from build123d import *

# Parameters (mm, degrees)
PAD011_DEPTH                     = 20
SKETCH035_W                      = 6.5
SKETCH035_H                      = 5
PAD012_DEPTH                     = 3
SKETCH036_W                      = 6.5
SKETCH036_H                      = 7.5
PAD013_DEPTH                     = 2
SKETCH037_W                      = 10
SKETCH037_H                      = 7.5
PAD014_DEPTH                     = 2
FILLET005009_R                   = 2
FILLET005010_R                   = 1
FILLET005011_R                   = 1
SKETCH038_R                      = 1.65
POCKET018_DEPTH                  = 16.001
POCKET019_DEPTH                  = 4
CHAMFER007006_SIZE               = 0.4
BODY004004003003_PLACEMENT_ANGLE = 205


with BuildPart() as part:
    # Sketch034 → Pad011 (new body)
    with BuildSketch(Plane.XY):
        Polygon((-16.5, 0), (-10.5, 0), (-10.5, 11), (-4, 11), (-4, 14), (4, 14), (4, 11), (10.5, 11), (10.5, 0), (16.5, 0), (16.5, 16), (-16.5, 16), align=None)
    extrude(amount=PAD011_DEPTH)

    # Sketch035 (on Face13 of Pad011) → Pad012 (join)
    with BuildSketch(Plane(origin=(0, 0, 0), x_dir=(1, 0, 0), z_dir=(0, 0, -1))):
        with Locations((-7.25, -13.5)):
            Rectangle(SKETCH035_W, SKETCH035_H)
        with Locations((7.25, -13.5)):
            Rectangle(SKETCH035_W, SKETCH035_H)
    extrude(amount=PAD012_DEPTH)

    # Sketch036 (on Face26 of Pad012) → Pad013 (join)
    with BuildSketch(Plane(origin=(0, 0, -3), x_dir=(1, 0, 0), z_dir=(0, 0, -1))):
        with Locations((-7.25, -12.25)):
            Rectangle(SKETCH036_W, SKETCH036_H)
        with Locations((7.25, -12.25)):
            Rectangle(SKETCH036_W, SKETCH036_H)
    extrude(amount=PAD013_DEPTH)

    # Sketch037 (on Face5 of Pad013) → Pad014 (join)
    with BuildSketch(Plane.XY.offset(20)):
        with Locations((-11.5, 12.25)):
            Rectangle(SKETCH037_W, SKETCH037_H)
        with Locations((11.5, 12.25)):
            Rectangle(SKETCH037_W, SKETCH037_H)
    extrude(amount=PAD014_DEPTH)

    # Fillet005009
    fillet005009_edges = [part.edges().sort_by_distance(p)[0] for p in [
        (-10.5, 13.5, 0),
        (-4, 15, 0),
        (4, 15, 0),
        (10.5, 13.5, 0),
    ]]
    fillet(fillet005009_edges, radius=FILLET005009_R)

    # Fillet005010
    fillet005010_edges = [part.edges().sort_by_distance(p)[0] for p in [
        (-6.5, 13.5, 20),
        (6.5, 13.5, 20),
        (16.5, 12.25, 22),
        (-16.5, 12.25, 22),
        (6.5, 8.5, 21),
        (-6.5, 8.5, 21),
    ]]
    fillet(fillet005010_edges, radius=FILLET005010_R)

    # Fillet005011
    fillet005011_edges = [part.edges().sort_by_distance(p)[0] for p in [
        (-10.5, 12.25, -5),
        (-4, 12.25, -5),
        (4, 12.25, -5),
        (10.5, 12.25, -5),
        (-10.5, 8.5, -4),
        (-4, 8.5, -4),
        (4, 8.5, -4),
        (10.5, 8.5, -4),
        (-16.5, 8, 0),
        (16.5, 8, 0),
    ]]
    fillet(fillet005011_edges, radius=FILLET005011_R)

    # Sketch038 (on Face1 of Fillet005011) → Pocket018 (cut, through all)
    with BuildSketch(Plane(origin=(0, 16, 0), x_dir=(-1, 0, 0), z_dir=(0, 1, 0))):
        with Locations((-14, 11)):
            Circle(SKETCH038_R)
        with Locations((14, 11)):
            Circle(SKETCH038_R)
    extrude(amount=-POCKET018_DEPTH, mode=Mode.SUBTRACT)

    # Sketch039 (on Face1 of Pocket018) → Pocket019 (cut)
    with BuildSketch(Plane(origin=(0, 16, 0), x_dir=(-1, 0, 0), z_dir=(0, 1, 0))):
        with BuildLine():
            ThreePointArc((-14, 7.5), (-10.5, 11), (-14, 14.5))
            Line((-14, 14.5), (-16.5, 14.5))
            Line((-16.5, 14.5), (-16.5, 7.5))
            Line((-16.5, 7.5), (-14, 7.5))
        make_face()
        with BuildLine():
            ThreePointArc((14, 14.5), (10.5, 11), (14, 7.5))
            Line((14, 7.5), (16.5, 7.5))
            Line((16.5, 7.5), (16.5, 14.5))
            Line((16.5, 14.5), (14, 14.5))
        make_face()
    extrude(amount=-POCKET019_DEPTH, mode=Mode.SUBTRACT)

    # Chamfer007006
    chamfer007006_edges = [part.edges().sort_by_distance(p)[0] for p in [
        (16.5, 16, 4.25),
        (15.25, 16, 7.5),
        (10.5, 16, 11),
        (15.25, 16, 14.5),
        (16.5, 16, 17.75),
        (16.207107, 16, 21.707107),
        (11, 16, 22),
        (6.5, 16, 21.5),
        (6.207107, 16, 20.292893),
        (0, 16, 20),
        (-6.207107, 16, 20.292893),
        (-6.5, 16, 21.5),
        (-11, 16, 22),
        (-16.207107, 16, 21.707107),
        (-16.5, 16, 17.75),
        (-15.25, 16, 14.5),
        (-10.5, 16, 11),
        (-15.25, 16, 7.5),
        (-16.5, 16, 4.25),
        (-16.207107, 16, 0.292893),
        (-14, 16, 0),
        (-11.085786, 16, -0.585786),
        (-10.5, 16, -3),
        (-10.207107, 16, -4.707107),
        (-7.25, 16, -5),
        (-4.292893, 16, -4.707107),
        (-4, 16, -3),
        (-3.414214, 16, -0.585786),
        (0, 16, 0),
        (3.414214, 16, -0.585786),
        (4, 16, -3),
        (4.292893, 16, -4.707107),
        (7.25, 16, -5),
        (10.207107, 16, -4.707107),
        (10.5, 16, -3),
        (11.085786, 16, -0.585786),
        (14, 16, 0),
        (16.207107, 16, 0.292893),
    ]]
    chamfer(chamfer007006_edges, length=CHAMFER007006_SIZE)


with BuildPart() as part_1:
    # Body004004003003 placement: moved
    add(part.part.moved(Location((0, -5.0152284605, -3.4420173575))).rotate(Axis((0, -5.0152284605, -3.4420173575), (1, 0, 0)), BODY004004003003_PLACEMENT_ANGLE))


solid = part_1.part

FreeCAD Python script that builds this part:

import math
import FreeCAD as App
import Part
import Sketcher
from FreeCAD import Vector


def edges_at(feature, points):
    """Names of the edges that pass closest to the given points."""
    edges = feature.Shape.Edges
    near = lambda p: min(range(len(edges)), key=lambda i: edges[i].distToShape(Part.Vertex(*p))[0])
    return sorted({f"Edge{near(p) + 1}" for p in points})


def add_polygon(sketch, points):
    """Adds a closed chain of lines whose ends are joined by coincident constraints."""
    first, n = sketch.GeometryCount, len(points)
    for a, b in zip(points, points[1:] + points[:1]):
        sketch.addGeometry(Part.LineSegment(App.Vector(*a, 0), App.Vector(*b, 0)), False)
    for i in range(n):
        sketch.addConstraint(Sketcher.Constraint("Coincident", first + i, 2, first + (i + 1) % n, 1))

doc = App.newDocument("Part")
body = doc.addObject("PartDesign::Body", "Body")

# Sketch on XY plane
sketch1 = body.newObject("Sketcher::SketchObject", "Sketch")
sketch1.AttachmentSupport = (doc.getObject("XY_Plane"), [""])
sketch1.MapMode = "FlatFace"
add_polygon(sketch1, [(-16.5, 0), (-10.5, 0), (-10.5, 11), (-4, 11), (-4, 14), (4, 14), (4, 11), (10.5, 11), (10.5, 0), (16.5, 0), (16.5, 16), (-16.5, 16)])  # lines 0-11
sketch1.addConstraint(Sketcher.Constraint("Horizontal", 0))
sketch1.addConstraint(Sketcher.Constraint("Vertical", 1))
sketch1.addConstraint(Sketcher.Constraint("Horizontal", 2))
sketch1.addConstraint(Sketcher.Constraint("Vertical", 3))
sketch1.addConstraint(Sketcher.Constraint("Horizontal", 4))
sketch1.addConstraint(Sketcher.Constraint("Vertical", 5))
sketch1.addConstraint(Sketcher.Constraint("Horizontal", 6))
sketch1.addConstraint(Sketcher.Constraint("Vertical", 7))
sketch1.addConstraint(Sketcher.Constraint("Horizontal", 8))
sketch1.addConstraint(Sketcher.Constraint("Vertical", 9))
sketch1.addConstraint(Sketcher.Constraint("Horizontal", 10))
sketch1.addConstraint(Sketcher.Constraint("Vertical", 11))
sketch1.addConstraint(Sketcher.Constraint("Symmetric", 0, 2, 7, 2, -1, 1))
sketch1.addConstraint(Sketcher.Constraint("Symmetric", 2, 2, 5, 2, -2))
sketch1.addConstraint(Sketcher.Constraint("Symmetric", 8, 2, 11, 2, -2))
sketch1.addConstraint(Sketcher.Constraint("DistanceX", 0, 1, 0, 2, 6.0))
sketch1.addConstraint(Sketcher.Constraint("DistanceX", 4, 1, 4, 2, 8.0))
sketch1.addConstraint(Sketcher.Constraint("DistanceX", 10, 2, 10, 1, 33.0))
sketch1.addConstraint(Sketcher.Constraint("DistanceY", 1, 1, 1, 2, 11.0))
sketch1.addConstraint(Sketcher.Constraint("DistanceY", 3, 1, 3, 2, 3.0))
sketch1.addConstraint(Sketcher.Constraint("DistanceY", 9, 1, 9, 2, 16.0))
pad1 = body.newObject("PartDesign::Pad", "Pad")
pad1.Profile = sketch1
pad1.Length = 20

# Sketch on XY plane
sketch2 = body.newObject("Sketcher::SketchObject", "Sketch001")
sketch2.AttachmentSupport = (doc.getObject("XY_Plane"), [""])
sketch2.MapMode = "FlatFace"
add_polygon(sketch2, [(-10, 11), (-10, 16), (-4, 16), (-4, 11)])  # lines 0-3
add_polygon(sketch2, [(4, 11), (4, 16), (10, 16), (10, 11)])  # lines 4-7
sketch2.addConstraint(Sketcher.Constraint("Vertical", 0))
sketch2.addConstraint(Sketcher.Constraint("Horizontal", 1))
sketch2.addConstraint(Sketcher.Constraint("Vertical", 2))
sketch2.addConstraint(Sketcher.Constraint("Horizontal", 3))
sketch2.addConstraint(Sketcher.Constraint("Vertical", 4))
sketch2.addConstraint(Sketcher.Constraint("Horizontal", 5))
sketch2.addConstraint(Sketcher.Constraint("Vertical", 6))
sketch2.addConstraint(Sketcher.Constraint("Horizontal", 7))
sketch2.addConstraint(Sketcher.Constraint("Symmetric", 1, 2, 4, 2, -2))
sketch2.addConstraint(Sketcher.Constraint("Symmetric", 3, 2, 6, 2, -2))
sketch2.addConstraint(Sketcher.Constraint("DistanceY", 0, 1, 0, 2, 5.0))
sketch2.addConstraint(Sketcher.Constraint("DistanceX", 1, 1, 1, 2, 6.5))
sketch2.addConstraint(Sketcher.Constraint("DistanceY", -1, 1, 0, 2, 16.0))
sketch2.addConstraint(Sketcher.Constraint("DistanceX", 1, 2, -1, 1, 4.0))
pad2 = body.newObject("PartDesign::Pad", "Pad001")
pad2.Profile = sketch2
pad2.Length = 3
pad2.Reversed = True

# Sketch on XY plane
sketch3 = body.newObject("Sketcher::SketchObject", "Sketch002")
sketch3.AttachmentSupport = (doc.getObject("XY_Plane"), [""])
sketch3.MapMode = "FlatFace"
sketch3.AttachmentOffset = App.Placement(Vector(0, 0, -3), App.Rotation())
add_polygon(sketch3, [(-10, 8), (-10, 16), (-4, 16), (-4, 8)])  # lines 0-3
add_polygon(sketch3, [(4, 8), (4, 16), (10, 16), (10, 8)])  # lines 4-7
sketch3.addConstraint(Sketcher.Constraint("Vertical", 0))
sketch3.addConstraint(Sketcher.Constraint("Horizontal", 1))
sketch3.addConstraint(Sketcher.Constraint("Vertical", 2))
sketch3.addConstraint(Sketcher.Constraint("Horizontal", 3))
sketch3.addConstraint(Sketcher.Constraint("Vertical", 4))
sketch3.addConstraint(Sketcher.Constraint("Horizontal", 5))
sketch3.addConstraint(Sketcher.Constraint("Vertical", 6))
sketch3.addConstraint(Sketcher.Constraint("Horizontal", 7))
sketch3.addConstraint(Sketcher.Constraint("Symmetric", 1, 2, 4, 2, -2))
sketch3.addConstraint(Sketcher.Constraint("Symmetric", 3, 2, 6, 2, -2))
sketch3.addConstraint(Sketcher.Constraint("DistanceX", 1, 1, 1, 2, 6.5))
sketch3.addConstraint(Sketcher.Constraint("DistanceY", 0, 1, 0, 2, 7.5))
sketch3.addConstraint(Sketcher.Constraint("DistanceY", -1, 1, 0, 2, 16.0))
sketch3.addConstraint(Sketcher.Constraint("DistanceX", 1, 2, -1, 1, 4.0))
pad3 = body.newObject("PartDesign::Pad", "Pad002")
pad3.Profile = sketch3
pad3.Length = 2
pad3.Reversed = True

# Sketch on XY plane
sketch4 = body.newObject("Sketcher::SketchObject", "Sketch003")
sketch4.AttachmentSupport = (doc.getObject("XY_Plane"), [""])
sketch4.MapMode = "FlatFace"
sketch4.AttachmentOffset = App.Placement(Vector(0, 0, 20), App.Rotation())
add_polygon(sketch4, [(-16, 16), (-16, 8), (-6, 8), (-6, 16)])  # lines 0-3
add_polygon(sketch4, [(6, 16), (6, 8), (16, 8), (16, 16)])  # lines 4-7
sketch4.addConstraint(Sketcher.Constraint("Vertical", 0))
sketch4.addConstraint(Sketcher.Constraint("Horizontal", 1))
sketch4.addConstraint(Sketcher.Constraint("Vertical", 2))
sketch4.addConstraint(Sketcher.Constraint("Horizontal", 3))
sketch4.addConstraint(Sketcher.Constraint("Vertical", 4))
sketch4.addConstraint(Sketcher.Constraint("Horizontal", 5))
sketch4.addConstraint(Sketcher.Constraint("Vertical", 6))
sketch4.addConstraint(Sketcher.Constraint("Horizontal", 7))
sketch4.addConstraint(Sketcher.Constraint("Symmetric", 1, 2, 4, 2, -2))
sketch4.addConstraint(Sketcher.Constraint("Symmetric", 3, 2, 6, 2, -2))
sketch4.addConstraint(Sketcher.Constraint("DistanceX", 1, 1, 1, 2, 10.0))
sketch4.addConstraint(Sketcher.Constraint("DistanceY", 0, 2, 0, 1, 7.5))
sketch4.addConstraint(Sketcher.Constraint("DistanceY", -1, 1, 2, 2, 16.0))
sketch4.addConstraint(Sketcher.Constraint("DistanceX", 1, 2, 4, 2, 13.0))
pad4 = body.newObject("PartDesign::Pad", "Pad003")
pad4.Profile = sketch4
pad4.Length = 2
doc.recompute()

fillet = body.newObject("PartDesign::Fillet", "Fillet")
fillet.Base = (pad4, edges_at(pad4, [
    (-10.5, 13.5, 0),
    (-4, 15, 0),
    (4, 15, 0),
    (10.5, 13.5, 0),
]))
fillet.Radius = 2
doc.recompute()

fillet2 = body.newObject("PartDesign::Fillet", "Fillet001")
fillet2.Base = (fillet, edges_at(fillet, [
    (-6.5, 13.5, 20),
    (6.5, 13.5, 20),
    (16.5, 12.25, 22),
    (-16.5, 12.25, 22),
    (6.5, 8.5, 21),
    (-6.5, 8.5, 21),
]))
fillet2.Radius = 1
doc.recompute()

fillet3 = body.newObject("PartDesign::Fillet", "Fillet002")
fillet3.Base = (fillet2, edges_at(fillet2, [
    (-10.5, 12.25, -5),
    (-4, 12.25, -5),
    (4, 12.25, -5),
    (10.5, 12.25, -5),
    (-10.5, 8.5, -4),
    (-4, 8.5, -4),
    (4, 8.5, -4),
    (10.5, 8.5, -4),
    (-16.5, 8, 0),
    (16.5, 8, 0),
]))
fillet3.Radius = 1

# Sketch on XZ plane
sketch5 = body.newObject("Sketcher::SketchObject", "Sketch004")
sketch5.AttachmentSupport = (doc.getObject("XZ_Plane"), [""])
sketch5.MapMode = "FlatFace"
sketch5.AttachmentOffset = App.Placement(Vector(0, 0, -16), App.Rotation())
sketch5.addGeometry(Part.Circle(Vector(14, 11, 0), Vector(0, 0, 1), 1.6), False)
sketch5.addGeometry(Part.Circle(Vector(-14, 11, 0), Vector(0, 0, 1), 1.6), False)
sketch5.addConstraint(Sketcher.Constraint("Equal", 0, 1))
sketch5.addConstraint(Sketcher.Constraint("Symmetric", 0, 3, 1, 3, -2))
sketch5.addConstraint(Sketcher.Constraint("Diameter", 0, 3.3))
sketch5.addConstraint(Sketcher.Constraint("DistanceX", -1, 1, 0, 3, 14.0))
sketch5.addConstraint(Sketcher.Constraint("DistanceY", -1, 1, 0, 3, 11.0))
pocket1 = body.newObject("PartDesign::Pocket", "Pocket")
pocket1.Profile = sketch5
pocket1.Type = "ThroughAll"
pocket1.Reversed = True

# Sketch on XZ plane
sketch6 = body.newObject("Sketcher::SketchObject", "Sketch005")
sketch6.AttachmentSupport = (doc.getObject("XZ_Plane"), [""])
sketch6.MapMode = "FlatFace"
sketch6.AttachmentOffset = App.Placement(Vector(0, 0, -16), App.Rotation())
sketch6.addGeometry(Part.ArcOfCircle(Part.Circle(Vector(14, 11, 0), Vector(0, 0, 1), 3.5), math.radians(90), math.radians(270)), False)
sketch6.addGeometry(Part.LineSegment(Vector(14, 14.5, 0), Vector(16.5, 14.5, 0)), False)
sketch6.addGeometry(Part.LineSegment(Vector(16.5, 14.5, 0), Vector(16.5, 7.5, 0)), False)
sketch6.addGeometry(Part.LineSegment(Vector(16.5, 7.5, 0), Vector(14, 7.5, 0)), False)
sketch6.addGeometry(Part.ArcOfCircle(Part.Circle(Vector(-14, 11, 0), Vector(0, 0, 1), 3.5), math.radians(-90), math.radians(90)), False)
sketch6.addGeometry(Part.LineSegment(Vector(-14, 7.5, 0), Vector(-16.5, 7.5, 0)), False)
sketch6.addGeometry(Part.LineSegment(Vector(-16.5, 7.5, 0), Vector(-16.5, 14.5, 0)), False)
sketch6.addGeometry(Part.LineSegment(Vector(-16.5, 14.5, 0), Vector(-14, 14.5, 0)), False)
sketch6.addConstraint(Sketcher.Constraint("Tangent", 0, 1, 1, 1))
sketch6.addConstraint(Sketcher.Constraint("Coincident", 1, 2, 2, 1))
sketch6.addConstraint(Sketcher.Constraint("Coincident", 2, 2, 3, 1))
sketch6.addConstraint(Sketcher.Constraint("Tangent", 3, 2, 0, 2))
sketch6.addConstraint(Sketcher.Constraint("Tangent", 4, 1, 5, 1))
sketch6.addConstraint(Sketcher.Constraint("Coincident", 5, 2, 6, 1))
sketch6.addConstraint(Sketcher.Constraint("Coincident", 6, 2, 7, 1))
sketch6.addConstraint(Sketcher.Constraint("Tangent", 7, 2, 4, 2))
sketch6.addConstraint(Sketcher.Constraint("Horizontal", 1))
sketch6.addConstraint(Sketcher.Constraint("Vertical", 2))
sketch6.addConstraint(Sketcher.Constraint("Horizontal", 3))
sketch6.addConstraint(Sketcher.Constraint("Horizontal", 5))
sketch6.addConstraint(Sketcher.Constraint("Vertical", 6))
sketch6.addConstraint(Sketcher.Constraint("Horizontal", 7))
sketch6.addConstraint(Sketcher.Constraint("Equal", 0, 4))
sketch6.addConstraint(Sketcher.Constraint("Symmetric", 0, 3, 4, 3, -2))
sketch6.addConstraint(Sketcher.Constraint("Equal", 3, 5))
sketch6.addConstraint(Sketcher.Constraint("Radius", 0, 3.5))
sketch6.addConstraint(Sketcher.Constraint("DistanceX", 1, 1, 1, 2, 2.5))
sketch6.addConstraint(Sketcher.Constraint("DistanceX", -1, 1, 0, 3, 14.0))
sketch6.addConstraint(Sketcher.Constraint("DistanceY", -1, 1, 0, 3, 11.0))
pocket2 = body.newObject("PartDesign::Pocket", "Pocket001")
pocket2.Profile = sketch6
pocket2.Length = 4
pocket2.Reversed = True
doc.recompute()

chamfer = body.newObject("PartDesign::Chamfer", "Chamfer")
chamfer.Base = (pocket2, edges_at(pocket2, [
    (16.5, 16, 4.25),
    (15.25, 16, 7.5),
    (10.5, 16, 11),
    (15.25, 16, 14.5),
    (16.5, 16, 17.75),
    (16.207, 16, 21.707),
    (11, 16, 22),
    (6.5, 16, 21.5),
    (6.207, 16, 20.293),
    (0, 16, 20),
    (-6.207, 16, 20.293),
    (-6.5, 16, 21.5),
    (-11, 16, 22),
    (-16.207, 16, 21.707),
    (-16.5, 16, 17.75),
    (-15.25, 16, 14.5),
    (-10.5, 16, 11),
    (-15.25, 16, 7.5),
    (-16.5, 16, 4.25),
    (-16.207, 16, 0.293),
    (-14, 16, 0),
    (-11.086, 16, -0.586),
    (-10.5, 16, -3),
    (-10.207, 16, -4.707),
    (-7.25, 16, -5),
    (-4.293, 16, -4.707),
    (-4, 16, -3),
    (-3.414, 16, -0.586),
    (0, 16, 0),
    (3.414, 16, -0.586),
    (4, 16, -3),
    (4.293, 16, -4.707),
    (7.25, 16, -5),
    (10.207, 16, -4.707),
    (10.5, 16, -3),
    (11.086, 16, -0.586),
    (14, 16, 0),
    (16.207, 16, 0.293),
]))
chamfer.Size = 0.4
body2 = doc.addObject("PartDesign::Body", "Body001")
doc.recompute()

body.Placement = App.Placement(Vector(0, -5.015228, -3.442017), App.Rotation(Vector(1, 0, 0), 205))
boolean = body2.newObject("PartDesign::Boolean", "Boolean")
boolean.Type = "Fuse"
boolean.addObjects([body])

doc.recompute()
